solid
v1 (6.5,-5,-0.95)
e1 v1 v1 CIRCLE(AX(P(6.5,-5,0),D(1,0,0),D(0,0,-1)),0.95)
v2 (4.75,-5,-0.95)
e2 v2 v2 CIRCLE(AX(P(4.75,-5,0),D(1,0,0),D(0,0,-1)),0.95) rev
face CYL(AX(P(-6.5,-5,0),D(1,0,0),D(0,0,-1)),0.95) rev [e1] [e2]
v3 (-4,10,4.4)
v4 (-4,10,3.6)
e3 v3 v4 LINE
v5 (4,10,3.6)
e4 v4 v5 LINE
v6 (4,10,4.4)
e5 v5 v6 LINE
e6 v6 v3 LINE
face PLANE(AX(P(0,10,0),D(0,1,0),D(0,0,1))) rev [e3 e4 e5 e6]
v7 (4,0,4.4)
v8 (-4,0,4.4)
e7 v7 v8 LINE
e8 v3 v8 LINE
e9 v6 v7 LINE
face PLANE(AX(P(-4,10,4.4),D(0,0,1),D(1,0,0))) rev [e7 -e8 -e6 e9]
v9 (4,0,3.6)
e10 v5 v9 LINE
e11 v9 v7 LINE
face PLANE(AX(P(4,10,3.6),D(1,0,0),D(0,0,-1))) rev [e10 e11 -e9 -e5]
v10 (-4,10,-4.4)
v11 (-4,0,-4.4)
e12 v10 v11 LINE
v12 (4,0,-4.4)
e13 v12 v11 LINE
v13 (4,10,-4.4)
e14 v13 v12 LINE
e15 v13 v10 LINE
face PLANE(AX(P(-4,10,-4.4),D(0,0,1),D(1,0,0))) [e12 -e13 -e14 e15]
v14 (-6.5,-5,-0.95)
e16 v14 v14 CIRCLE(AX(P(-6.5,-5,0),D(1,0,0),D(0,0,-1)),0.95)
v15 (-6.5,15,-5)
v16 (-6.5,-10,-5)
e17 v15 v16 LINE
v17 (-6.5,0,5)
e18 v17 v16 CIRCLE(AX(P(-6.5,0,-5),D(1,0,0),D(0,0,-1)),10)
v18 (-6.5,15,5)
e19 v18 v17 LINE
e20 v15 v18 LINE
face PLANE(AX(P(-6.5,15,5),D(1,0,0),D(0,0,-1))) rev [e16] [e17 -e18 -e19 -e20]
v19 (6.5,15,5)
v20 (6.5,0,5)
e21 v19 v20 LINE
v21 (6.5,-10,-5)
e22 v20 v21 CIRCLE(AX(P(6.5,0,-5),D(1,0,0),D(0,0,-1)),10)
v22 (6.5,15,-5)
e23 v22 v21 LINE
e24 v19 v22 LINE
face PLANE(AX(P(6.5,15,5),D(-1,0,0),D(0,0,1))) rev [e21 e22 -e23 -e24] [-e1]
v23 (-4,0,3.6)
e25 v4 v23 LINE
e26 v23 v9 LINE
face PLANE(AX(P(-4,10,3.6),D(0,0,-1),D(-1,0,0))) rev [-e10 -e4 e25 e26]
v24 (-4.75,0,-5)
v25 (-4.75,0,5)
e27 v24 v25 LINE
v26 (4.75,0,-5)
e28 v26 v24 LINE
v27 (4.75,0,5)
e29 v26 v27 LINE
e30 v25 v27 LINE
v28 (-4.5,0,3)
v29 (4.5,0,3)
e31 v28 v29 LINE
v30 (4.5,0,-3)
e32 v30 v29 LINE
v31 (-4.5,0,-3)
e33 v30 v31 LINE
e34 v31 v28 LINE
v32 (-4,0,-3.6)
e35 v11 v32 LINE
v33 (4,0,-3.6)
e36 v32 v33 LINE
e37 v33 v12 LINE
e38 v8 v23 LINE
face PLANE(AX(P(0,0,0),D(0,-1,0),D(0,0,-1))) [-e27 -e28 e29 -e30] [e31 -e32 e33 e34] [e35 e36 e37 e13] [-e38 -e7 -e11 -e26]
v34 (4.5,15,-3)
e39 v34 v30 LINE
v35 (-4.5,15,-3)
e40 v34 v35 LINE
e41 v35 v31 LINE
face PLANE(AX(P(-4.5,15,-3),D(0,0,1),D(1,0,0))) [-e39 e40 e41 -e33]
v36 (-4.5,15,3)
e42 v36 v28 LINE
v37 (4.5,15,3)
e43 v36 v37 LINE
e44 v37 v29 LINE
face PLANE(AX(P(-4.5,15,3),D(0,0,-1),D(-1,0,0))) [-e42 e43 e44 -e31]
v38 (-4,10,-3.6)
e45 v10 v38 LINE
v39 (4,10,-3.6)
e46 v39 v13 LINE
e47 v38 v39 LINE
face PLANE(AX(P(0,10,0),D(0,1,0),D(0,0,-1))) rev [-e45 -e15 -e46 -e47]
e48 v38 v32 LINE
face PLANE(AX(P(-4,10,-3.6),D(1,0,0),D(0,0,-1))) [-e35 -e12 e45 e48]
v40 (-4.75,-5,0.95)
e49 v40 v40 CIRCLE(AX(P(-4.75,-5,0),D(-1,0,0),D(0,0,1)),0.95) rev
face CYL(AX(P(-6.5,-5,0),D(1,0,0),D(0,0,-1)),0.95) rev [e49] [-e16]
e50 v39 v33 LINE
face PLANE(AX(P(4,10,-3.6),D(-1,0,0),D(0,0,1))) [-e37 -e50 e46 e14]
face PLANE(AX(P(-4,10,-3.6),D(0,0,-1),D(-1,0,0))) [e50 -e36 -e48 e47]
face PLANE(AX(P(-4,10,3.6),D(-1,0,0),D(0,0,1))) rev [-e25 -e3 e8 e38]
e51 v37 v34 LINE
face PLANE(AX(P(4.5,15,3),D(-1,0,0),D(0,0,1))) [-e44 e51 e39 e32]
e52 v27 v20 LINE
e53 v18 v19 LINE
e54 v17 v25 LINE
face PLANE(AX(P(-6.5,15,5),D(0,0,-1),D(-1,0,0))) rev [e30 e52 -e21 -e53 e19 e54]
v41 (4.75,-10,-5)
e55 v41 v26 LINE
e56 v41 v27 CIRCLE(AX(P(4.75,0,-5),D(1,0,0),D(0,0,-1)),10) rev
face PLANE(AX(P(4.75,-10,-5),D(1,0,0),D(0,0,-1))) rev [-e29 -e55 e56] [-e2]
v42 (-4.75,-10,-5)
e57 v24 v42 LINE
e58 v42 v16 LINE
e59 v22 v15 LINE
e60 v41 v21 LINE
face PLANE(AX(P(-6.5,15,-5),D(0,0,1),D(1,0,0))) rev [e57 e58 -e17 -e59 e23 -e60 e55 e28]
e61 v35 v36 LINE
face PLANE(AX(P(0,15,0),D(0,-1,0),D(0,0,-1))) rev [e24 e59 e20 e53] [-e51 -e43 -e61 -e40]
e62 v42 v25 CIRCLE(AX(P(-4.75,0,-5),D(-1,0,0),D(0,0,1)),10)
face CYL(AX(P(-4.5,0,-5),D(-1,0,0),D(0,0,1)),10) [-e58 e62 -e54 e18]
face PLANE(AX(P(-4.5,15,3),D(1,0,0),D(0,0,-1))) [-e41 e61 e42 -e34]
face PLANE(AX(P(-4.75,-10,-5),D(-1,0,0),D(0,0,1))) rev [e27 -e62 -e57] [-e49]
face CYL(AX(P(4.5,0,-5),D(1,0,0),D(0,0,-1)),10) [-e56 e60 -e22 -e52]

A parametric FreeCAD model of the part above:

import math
import FreeCAD as App
import Part
import Sketcher
Q = App.Units.Quantity

doc = App.newDocument("Part")
body = doc.addObject("PartDesign::Body", "Body")

sketch1 = body.newObject("Sketcher::SketchObject", "Sketch")
sketch1.AttachmentSupport = (doc.getObject("XZ_Plane"), [""])
sketch1.MapMode = "FlatFace"
sketch1.addGeometry([
    Part.LineSegment(App.Vector(-6, -5, 0), App.Vector(-6, 5, 0)),
    Part.LineSegment(App.Vector(-6, 5, 0), App.Vector(6, 5, 0)),
    Part.LineSegment(App.Vector(6, 5, 0), App.Vector(6, -5, 0)),
    Part.LineSegment(App.Vector(6, -5, 0), App.Vector(-6, -5, 0)),
    Part.LineSegment(App.Vector(4, 3, 0), App.Vector(-4, 3, 0)),
    Part.LineSegment(App.Vector(-4, 3, 0), App.Vector(-4, -3, 0)),
    Part.LineSegment(App.Vector(-4, -3, 0), App.Vector(4, -3, 0)),
    Part.LineSegment(App.Vector(4, -3, 0), App.Vector(4, 3, 0)),
], False)
sketch1.addConstraint([
    Sketcher.Constraint("Coincident", 0, 2, 1, 1),
    Sketcher.Constraint("Coincident", 1, 2, 2, 1),
    Sketcher.Constraint("Coincident", 2, 2, 3, 1),
    Sketcher.Constraint("Coincident", 3, 2, 0, 1),
    Sketcher.Constraint("Coincident", 4, 2, 5, 1),
    Sketcher.Constraint("Coincident", 5, 2, 6, 1),
    Sketcher.Constraint("Coincident", 6, 2, 7, 1),
    Sketcher.Constraint("Coincident", 7, 2, 4, 1),
    Sketcher.Constraint("Vertical", 0),
    Sketcher.Constraint("Horizontal", 1),
    Sketcher.Constraint("Vertical", 2),
    Sketcher.Constraint("Horizontal", 3),
    Sketcher.Constraint("Horizontal", 4),
    Sketcher.Constraint("Vertical", 5),
    Sketcher.Constraint("Horizontal", 6),
    Sketcher.Constraint("Vertical", 7),
    Sketcher.Constraint("Symmetric", 0, 2, 2, 2, -1, 1),
    Sketcher.Constraint("Symmetric", 4, 2, 6, 2, -1, 1),
    Sketcher.Constraint("DistanceX", 1, 1, 1, 2, Q("13 mm")),
    Sketcher.Constraint("DistanceX", 4, 2, 4, 1, Q("9 mm")),
    Sketcher.Constraint("DistanceY", 0, 1, 0, 2, Q("10 mm")),
    Sketcher.Constraint("DistanceY", 5, 2, 5, 1, Q("6 mm")),
])
pad1 = body.newObject("PartDesign::Pad", "Pad")
pad1.Profile = sketch1
pad1.Length = 15
pad1.Reversed = True

sketch2 = body.newObject("Sketcher::SketchObject", "Sketch001")
sketch2.AttachmentSupport = (doc.getObject("YZ_Plane"), [""])
sketch2.MapMode = "FlatFace"
sketch2.AttachmentOffset = App.Placement(App.Vector(0, 0, 6.5), App.Rotation())
sketch2.addGeometry([
    Part.ArcOfCircle(Part.Circle(App.Vector(0, -5, 0), App.Vector(0, 0, 1), 10), math.radians(90), math.radians(180)),
    Part.LineSegment(App.Vector(-10, -5, 0), App.Vector(0, -5, 0)),
    Part.LineSegment(App.Vector(0, -5, 0), App.Vector(0, 5, 0)),
], False)
sketch2.addConstraint([
    Sketcher.Constraint("Coincident", 0, 2, 1, 1),
    Sketcher.Constraint("Coincident", 1, 2, 2, 1),
    Sketcher.Constraint("Coincident", 2, 2, 0, 1),
    Sketcher.Constraint("Horizontal", 1),
    Sketcher.Constraint("Vertical", 2),
    Sketcher.Constraint("Coincident", 1, 2, 0, 3),
    Sketcher.Constraint("Symmetric", 1, 2, 2, 2, -1, 1),
    Sketcher.Constraint("Radius", 0, Q("10 mm")),
])
pad2 = body.newObject("PartDesign::Pad", "Pad001")
pad2.Profile = sketch2
pad2.Length = 2
pad2.Reversed = True
doc.recompute()

mirrored = body.newObject("PartDesign::Mirrored", "Mirrored")
mirrored.Originals = [pad2]
mirrored.MirrorPlane = (doc.getObject("YZ_Plane"), [""])
body.Tip = mirrored

sketch3 = body.newObject("Sketcher::SketchObject", "Sketch002")
sketch3.AttachmentSupport = (doc.getObject("YZ_Plane"), [""])
sketch3.MapMode = "FlatFace"
sketch3.AttachmentOffset = App.Placement(App.Vector(0, 0, 6.5), App.Rotation())
sketch3.addGeometry(Part.Circle(App.Vector(-5, 0, 0), App.Vector(0, 0, 1), 0.9), False)
sketch3.addConstraint([
    Sketcher.Constraint("PointOnObject", 0, 3, -1),
    Sketcher.Constraint("Diameter", 0, Q("1.9 mm")),
    Sketcher.Constraint("DistanceX", 0, 3, -1, 1, Q("5 mm")),
])
pocket1 = body.newObject("PartDesign::Pocket", "Pocket")
pocket1.Profile = sketch3
pocket1.Type = "ThroughAll"

sketch4 = body.newObject("Sketcher::SketchObject", "Sketch003")
sketch4.AttachmentSupport = (doc.getObject("XY_Plane"), [""])
sketch4.MapMode = "FlatFace"
sketch4.addGeometry([
    Part.LineSegment(App.Vector(-4.75, 0, 0), App.Vector(-4.75, -10, 0)),
    Part.LineSegment(App.Vector(-4.75, -10, 0), App.Vector(-4.5, -10, 0)),
    Part.LineSegment(App.Vector(-4.5, -10, 0), App.Vector(-4.5, 0, 0)),
    Part.LineSegment(App.Vector(-4.5, 0, 0), App.Vector(-4.75, 0, 0)),
    Part.LineSegment(App.Vector(4.5, 0, 0), App.Vector(4.5, -10, 0)),
    Part.LineSegment(App.Vector(4.5, -10, 0), App.Vector(4.75, -10, 0)),
    Part.LineSegment(App.Vector(4.75, -10, 0), App.Vector(4.75, 0, 0)),
    Part.LineSegment(App.Vector(4.75, 0, 0), App.Vector(4.5, 0, 0)),
], False)
sketch4.addConstraint([
    Sketcher.Constraint("Coincident", 0, 2, 1, 1),
    Sketcher.Constraint("Coincident", 1, 2, 2, 1),
    Sketcher.Constraint("Coincident", 2, 2, 3, 1),
    Sketcher.Constraint("Coincident", 3, 2, 0, 1),
    Sketcher.Constraint("Coincident", 4, 2, 5, 1),
    Sketcher.Constraint("Coincident", 5, 2, 6, 1),
    Sketcher.Constraint("Coincident", 6, 2, 7, 1),
    Sketcher.Constraint("Coincident", 7, 2, 4, 1),
    Sketcher.Constraint("Vertical", 0),
    Sketcher.Constraint("Horizontal", 1),
    Sketcher.Constraint("Vertical", 2),
    Sketcher.Constraint("Horizontal", 3),
    Sketcher.Constraint("Vertical", 4),
    Sketcher.Constraint("Horizontal", 5),
    Sketcher.Constraint("Vertical", 6),
    Sketcher.Constraint("Horizontal", 7),
    Sketcher.Constraint("Symmetric", 3, 2, 6, 2, -1, 1),
    Sketcher.Constraint("Symmetric", 1, 2, 4, 2, -2),
    Sketcher.Constraint("PointOnObject", 2, 2, -1),
    Sketcher.Constraint("DistanceY", 0, 2, 0, 1, Q("10 mm")),
    Sketcher.Constraint("DistanceX", 1, 2, 4, 2, Q("9 mm")),
    Sketcher.Constraint("DistanceX", 1, 1, 1, 2, Q("0.25 mm")),
])
pocket2 = body.newObject("PartDesign::Pocket", "Pocket001")
pocket2.Profile = sketch4
pocket2.Type = "ThroughAll"
pocket2.Midplane = True

sketch5 = body.newObject("Sketcher::SketchObject", "Sketch004")
sketch5.AttachmentSupport = (doc.getObject("XZ_Plane"), [""])
sketch5.MapMode = "FlatFace"
sketch5.addGeometry([
    Part.LineSegment(App.Vector(-4, 4.4, 0), App.Vector(-4, 3.6, 0)),
    Part.LineSegment(App.Vector(-4, 3.6, 0), App.Vector(4, 3.6, 0)),
    Part.LineSegment(App.Vector(4, 3.6, 0), App.Vector(4, 4.4, 0)),
    Part.LineSegment(App.Vector(4, 4.4, 0), App.Vector(-4, 4.4, 0)),
], False)
sketch5.addConstraint([
    Sketcher.Constraint("Coincident", 0, 2, 1, 1),
    Sketcher.Constraint("Coincident", 1, 2, 2, 1),
    Sketcher.Constraint("Coincident", 2, 2, 3, 1),
    Sketcher.Constraint("Coincident", 3, 2, 0, 1),
    Sketcher.Constraint("Vertical", 0),
    Sketcher.Constraint("Horizontal", 1),
    Sketcher.Constraint("Vertical", 2),
    Sketcher.Constraint("Horizontal", 3),
    Sketcher.Constraint("DistanceX", 1, 1, 1, 2, Q("8 mm")),
    Sketcher.Constraint("DistanceY", 0, 2, 0, 1, Q("0.8 mm")),
    Sketcher.Constraint("DistanceX", 0, 2, -1, 1, Q("4 mm")),
    Sketcher.Constraint("DistanceY", -1, 1, 0, 2, Q("3.6 mm")),
])
pocket3 = body.newObject("PartDesign::Pocket", "Pocket002")
pocket3.Profile = sketch5
pocket3.Length = 10
doc.recompute()

mirrored2 = body.newObject("PartDesign::Mirrored", "Mirrored001")
mirrored2.Originals = [pocket3]
mirrored2.MirrorPlane = (doc.getObject("XY_Plane"), [""])
body.Tip = mirrored2

doc.recompute()
